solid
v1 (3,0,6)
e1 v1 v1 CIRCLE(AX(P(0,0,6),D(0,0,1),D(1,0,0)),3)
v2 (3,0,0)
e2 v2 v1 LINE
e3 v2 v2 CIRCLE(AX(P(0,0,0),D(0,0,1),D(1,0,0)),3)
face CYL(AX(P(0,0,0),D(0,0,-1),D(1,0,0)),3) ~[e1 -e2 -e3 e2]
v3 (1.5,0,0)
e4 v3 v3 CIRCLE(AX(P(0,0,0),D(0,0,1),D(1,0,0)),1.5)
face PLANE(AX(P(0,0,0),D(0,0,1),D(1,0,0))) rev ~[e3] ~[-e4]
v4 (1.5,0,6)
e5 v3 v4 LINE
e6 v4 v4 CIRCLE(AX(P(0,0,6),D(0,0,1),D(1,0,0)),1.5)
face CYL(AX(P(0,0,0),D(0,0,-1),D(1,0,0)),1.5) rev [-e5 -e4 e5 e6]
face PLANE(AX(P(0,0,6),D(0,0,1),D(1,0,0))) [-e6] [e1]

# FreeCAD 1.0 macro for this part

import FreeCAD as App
import Part
import Sketcher
Q = App.Units.Quantity

doc = App.newDocument("Part")
params = doc.addObject("Spreadsheet::Sheet", "Params")
for row, (alias, value) in enumerate([
    ("sketch1_diameter", "6 mm"),
    ("sketch1_diameter2", "3 mm"),
    ("pad1_length", "6 mm"),
], start=1):
    params.set(f"A{row}", alias)
    params.set(f"B{row}", "=" + value)
    params.setAlias(f"B{row}", alias)

body = doc.addObject("PartDesign::Body", "Body")

sketch1 = body.newObject("Sketcher::SketchObject", "Sketch")
sketch1.AttachmentSupport = (doc.getObject("XY_Plane"), [""])
sketch1.MapMode = "FlatFace"
sketch1.addGeometry([
    Part.Circle(App.Vector(0, 0, 0), App.Vector(0, 0, 1), 3),
    Part.Circle(App.Vector(0, 0, 0), App.Vector(0, 0, 1), 1.5),
], False)
sketch1.addConstraint([
    Sketcher.Constraint("Coincident", 0, 3, -1, 1),
    Sketcher.Constraint("Coincident", 1, 3, -1, 1),
    Sketcher.Constraint("Diameter", 0, Q("6 mm")),
    Sketcher.Constraint("Diameter", 1, Q("3 mm")),
])
sketch1.setExpression("Constraints[2]", "Params.sketch1_diameter")
sketch1.setExpression("Constraints[3]", "Params.sketch1_diameter2")
pad1 = body.newObject("PartDesign::Pad", "Pad")
pad1.Profile = sketch1
pad1.setExpression("Length", "Params.pad1_length")

doc.recompute()
